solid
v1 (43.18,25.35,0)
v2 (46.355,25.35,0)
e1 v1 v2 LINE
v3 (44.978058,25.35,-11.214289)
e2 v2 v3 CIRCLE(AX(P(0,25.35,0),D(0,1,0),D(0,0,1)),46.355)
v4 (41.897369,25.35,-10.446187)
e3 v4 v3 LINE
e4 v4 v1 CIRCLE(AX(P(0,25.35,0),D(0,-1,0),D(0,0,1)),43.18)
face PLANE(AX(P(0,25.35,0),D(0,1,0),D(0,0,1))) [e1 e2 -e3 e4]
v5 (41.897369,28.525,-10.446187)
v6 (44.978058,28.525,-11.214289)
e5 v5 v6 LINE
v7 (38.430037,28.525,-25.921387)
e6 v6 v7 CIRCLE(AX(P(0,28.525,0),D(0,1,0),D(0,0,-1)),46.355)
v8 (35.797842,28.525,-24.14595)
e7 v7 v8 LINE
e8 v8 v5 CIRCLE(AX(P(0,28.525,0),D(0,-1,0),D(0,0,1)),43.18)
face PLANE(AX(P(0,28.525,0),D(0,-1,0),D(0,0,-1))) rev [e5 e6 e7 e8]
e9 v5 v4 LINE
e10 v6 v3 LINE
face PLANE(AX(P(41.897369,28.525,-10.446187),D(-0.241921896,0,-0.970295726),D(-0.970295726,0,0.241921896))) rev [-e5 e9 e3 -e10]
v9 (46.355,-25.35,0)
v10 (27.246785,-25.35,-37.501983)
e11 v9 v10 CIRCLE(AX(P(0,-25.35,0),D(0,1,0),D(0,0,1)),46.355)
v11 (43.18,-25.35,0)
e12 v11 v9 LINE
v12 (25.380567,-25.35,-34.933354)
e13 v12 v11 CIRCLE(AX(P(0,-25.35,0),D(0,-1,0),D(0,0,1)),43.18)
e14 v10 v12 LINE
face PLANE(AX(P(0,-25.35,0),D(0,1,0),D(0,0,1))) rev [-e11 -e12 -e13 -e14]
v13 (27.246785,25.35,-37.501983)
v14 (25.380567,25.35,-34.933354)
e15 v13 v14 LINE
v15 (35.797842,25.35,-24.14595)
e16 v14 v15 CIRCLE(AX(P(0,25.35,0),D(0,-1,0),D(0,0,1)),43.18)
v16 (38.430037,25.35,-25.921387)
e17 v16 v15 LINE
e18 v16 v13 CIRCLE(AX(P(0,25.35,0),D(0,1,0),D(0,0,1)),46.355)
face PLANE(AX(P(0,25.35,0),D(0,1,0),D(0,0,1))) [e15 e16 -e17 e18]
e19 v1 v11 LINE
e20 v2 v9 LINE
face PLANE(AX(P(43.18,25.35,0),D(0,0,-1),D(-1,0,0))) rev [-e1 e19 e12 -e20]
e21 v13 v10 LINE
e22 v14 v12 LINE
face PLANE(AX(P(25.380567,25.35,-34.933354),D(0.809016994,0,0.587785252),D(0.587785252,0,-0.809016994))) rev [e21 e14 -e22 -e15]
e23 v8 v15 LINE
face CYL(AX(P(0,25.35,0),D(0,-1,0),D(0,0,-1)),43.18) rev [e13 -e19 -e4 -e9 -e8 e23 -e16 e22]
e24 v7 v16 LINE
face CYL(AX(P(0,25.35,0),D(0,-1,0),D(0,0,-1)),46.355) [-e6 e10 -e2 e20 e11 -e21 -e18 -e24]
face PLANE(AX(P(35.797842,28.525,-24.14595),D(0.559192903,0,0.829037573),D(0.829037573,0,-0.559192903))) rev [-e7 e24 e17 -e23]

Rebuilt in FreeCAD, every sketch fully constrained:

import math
import FreeCAD as App
import Part
import Sketcher
from FreeCAD import Vector
Q = App.Units.Quantity

doc = App.newDocument("Part")
body = doc.addObject("PartDesign::Body", "Body")

sketch1 = body.newObject("Sketcher::SketchObject", "Sketch")
sketch1.AttachmentSupport = (doc.getObject("XZ_Plane"), [""])
sketch1.MapMode = "FlatFace"
sketch1.addGeometry(Part.LineSegment(Vector(27.246785, -37.501983, 0), Vector(25.380567, -34.933354, 0)), False)
sketch1.addGeometry(Part.ArcOfCircle(Part.Circle(Vector(0, 0, 0), Vector(0, 0, 1), 43.18), math.radians(-54), math.radians(0)), False)
sketch1.addGeometry(Part.LineSegment(Vector(43.18, 0, 0), Vector(46.355, 0, 0)), False)
sketch1.addGeometry(Part.ArcOfCircle(Part.Circle(Vector(0, 0, 0), Vector(0, 0, 1), 46.355), math.radians(-54), math.radians(0)), False)
sketch1.addConstraint(Sketcher.Constraint("Coincident", 0, 2, 1, 1))
sketch1.addConstraint(Sketcher.Constraint("Coincident", 1, 2, 2, 1))
sketch1.addConstraint(Sketcher.Constraint("Coincident", 2, 2, 3, 2))
sketch1.addConstraint(Sketcher.Constraint("Coincident", 3, 1, 0, 1))
sketch1.addConstraint(Sketcher.Constraint("Horizontal", 2))
sketch1.addConstraint(Sketcher.Constraint("Coincident", 1, 3, -1, 1))
sketch1.addConstraint(Sketcher.Constraint("Coincident", 3, 3, -1, 1))
sketch1.addConstraint(Sketcher.Constraint("PointOnObject", 1, 2, -1))
sketch1.addConstraint(Sketcher.Constraint("Radius", 1, Q("1.7 in")))
sketch1.addConstraint(Sketcher.Constraint("Angle", 0, Q("126 deg")))
sketch1.addConstraint(Sketcher.Constraint("Radius", 3, Q("1.825 in")))
sketch1.addConstraint(Sketcher.Constraint("DistanceX", -1, 1, 0, 2, Q("25.380567 mm")))
pad1 = body.newObject("PartDesign::Pad", "Pad")
pad1.Profile = sketch1
pad1.Length = 50.7
pad1.Midplane = True

sketch2 = body.newObject("Sketcher::SketchObject", "Sketch001")
sketch2.AttachmentSupport = (doc.getObject("XZ_Plane"), [""])
sketch2.MapMode = "FlatFace"
sketch2.AttachmentOffset = App.Placement(Vector(0, 0, -28.525), App.Rotation())
sketch2.addGeometry(Part.LineSegment(Vector(38.430037, -25.921387, 0), Vector(35.797842, -24.14595, 0)), False)
sketch2.addGeometry(Part.ArcOfCircle(Part.Circle(Vector(0, 0, 0), Vector(0, 0, 1), 43.18), math.radians(-34), math.radians(-14)), False)
sketch2.addGeometry(Part.LineSegment(Vector(41.897369, -10.446187, 0), Vector(44.978058, -11.214289, 0)), False)
sketch2.addGeometry(Part.ArcOfCircle(Part.Circle(Vector(0, 0, 0), Vector(0, 0, 1), 46.355), math.radians(-34), math.radians(-14)), False)
sketch2.addConstraint(Sketcher.Constraint("Coincident", 0, 2, 1, 1))
sketch2.addConstraint(Sketcher.Constraint("Coincident", 1, 2, 2, 1))
sketch2.addConstraint(Sketcher.Constraint("Coincident", 2, 2, 3, 2))
sketch2.addConstraint(Sketcher.Constraint("Coincident", 3, 1, 0, 1))
sketch2.addConstraint(Sketcher.Constraint("Coincident", 1, 3, -1, 1))
sketch2.addConstraint(Sketcher.Constraint("Coincident", 3, 3, -1, 1))
sketch2.addConstraint(Sketcher.Constraint("Radius", 1, Q("1.7 in")))
sketch2.addConstraint(Sketcher.Constraint("Angle", 0, Q("146 deg")))
sketch2.addConstraint(Sketcher.Constraint("Angle", 2, Q("-14 deg")))
sketch2.addConstraint(Sketcher.Constraint("Radius", 3, Q("1.825 in")))
sketch2.addConstraint(Sketcher.Constraint("DistanceY", 3, 1, 1, 2, Q("15.4752 mm")))
sketch2.addConstraint(Sketcher.Constraint("DistanceY", 0, 2, -1, 1, Q("24.14595 mm")))
pad2 = body.newObject("PartDesign::Pad", "Pad001")
pad2.Profile = sketch2
pad2.Length = Q("0.125 in")

doc.recompute()
